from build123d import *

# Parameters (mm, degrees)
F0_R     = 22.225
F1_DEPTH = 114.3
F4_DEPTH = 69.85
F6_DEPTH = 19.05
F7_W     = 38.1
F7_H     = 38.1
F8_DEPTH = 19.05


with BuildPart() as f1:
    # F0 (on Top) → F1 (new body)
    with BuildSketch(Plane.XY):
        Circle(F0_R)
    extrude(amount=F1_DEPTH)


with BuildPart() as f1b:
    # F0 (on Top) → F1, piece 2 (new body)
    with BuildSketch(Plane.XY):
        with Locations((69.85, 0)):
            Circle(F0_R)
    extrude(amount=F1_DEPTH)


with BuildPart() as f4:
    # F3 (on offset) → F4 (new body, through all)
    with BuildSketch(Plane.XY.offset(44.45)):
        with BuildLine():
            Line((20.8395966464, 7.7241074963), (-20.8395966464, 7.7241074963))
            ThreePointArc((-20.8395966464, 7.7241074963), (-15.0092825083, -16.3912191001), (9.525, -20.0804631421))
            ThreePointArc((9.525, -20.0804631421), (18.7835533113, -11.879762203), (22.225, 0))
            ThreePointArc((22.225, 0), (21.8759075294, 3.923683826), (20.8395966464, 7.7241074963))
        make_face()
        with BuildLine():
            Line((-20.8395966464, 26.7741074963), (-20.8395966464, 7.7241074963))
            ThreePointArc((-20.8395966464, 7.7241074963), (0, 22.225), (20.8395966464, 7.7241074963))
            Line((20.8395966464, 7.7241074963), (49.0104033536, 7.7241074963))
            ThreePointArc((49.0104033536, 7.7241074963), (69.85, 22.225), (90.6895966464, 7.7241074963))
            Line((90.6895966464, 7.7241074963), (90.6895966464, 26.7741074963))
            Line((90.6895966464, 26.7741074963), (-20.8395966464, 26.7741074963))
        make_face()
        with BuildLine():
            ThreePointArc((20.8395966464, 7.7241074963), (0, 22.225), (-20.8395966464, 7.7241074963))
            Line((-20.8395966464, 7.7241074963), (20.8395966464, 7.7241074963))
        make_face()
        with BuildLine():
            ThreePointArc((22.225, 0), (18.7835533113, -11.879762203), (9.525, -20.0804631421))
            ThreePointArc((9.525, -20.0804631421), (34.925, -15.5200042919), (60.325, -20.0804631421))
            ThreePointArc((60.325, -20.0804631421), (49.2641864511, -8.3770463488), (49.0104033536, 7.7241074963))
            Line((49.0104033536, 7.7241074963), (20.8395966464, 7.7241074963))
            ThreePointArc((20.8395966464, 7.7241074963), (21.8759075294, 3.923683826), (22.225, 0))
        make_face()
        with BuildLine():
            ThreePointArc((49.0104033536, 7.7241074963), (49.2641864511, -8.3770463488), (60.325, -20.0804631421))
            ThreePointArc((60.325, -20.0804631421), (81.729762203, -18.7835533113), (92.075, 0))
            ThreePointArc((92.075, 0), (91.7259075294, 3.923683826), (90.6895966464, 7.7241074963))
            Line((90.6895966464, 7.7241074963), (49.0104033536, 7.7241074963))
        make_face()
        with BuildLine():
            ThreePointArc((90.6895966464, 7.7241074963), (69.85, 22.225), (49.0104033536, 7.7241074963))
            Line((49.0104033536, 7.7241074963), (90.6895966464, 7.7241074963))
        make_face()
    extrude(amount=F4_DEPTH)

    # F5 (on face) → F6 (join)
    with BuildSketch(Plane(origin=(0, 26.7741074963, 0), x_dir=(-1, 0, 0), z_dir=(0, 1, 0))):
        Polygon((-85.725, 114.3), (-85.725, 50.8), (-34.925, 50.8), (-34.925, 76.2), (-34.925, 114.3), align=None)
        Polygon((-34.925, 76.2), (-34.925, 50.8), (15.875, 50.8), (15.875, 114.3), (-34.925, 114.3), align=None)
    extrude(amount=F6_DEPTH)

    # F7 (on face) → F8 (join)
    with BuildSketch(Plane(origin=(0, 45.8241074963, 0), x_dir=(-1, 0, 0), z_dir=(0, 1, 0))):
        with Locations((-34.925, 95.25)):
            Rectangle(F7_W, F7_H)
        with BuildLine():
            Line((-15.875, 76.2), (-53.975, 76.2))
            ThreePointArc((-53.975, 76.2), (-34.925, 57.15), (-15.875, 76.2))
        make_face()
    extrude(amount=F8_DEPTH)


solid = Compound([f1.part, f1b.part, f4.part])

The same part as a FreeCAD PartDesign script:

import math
import FreeCAD as App
import Part
import Sketcher

V = App.Vector
Q = App.Units.Quantity


def add_polygon(sketch, points):
    """Adds a closed chain of lines whose ends are joined by coincident constraints."""
    first, n = sketch.GeometryCount, len(points)
    for a, b in zip(points, points[1:] + points[:1]):
        sketch.addGeometry(Part.LineSegment(App.Vector(*a, 0), App.Vector(*b, 0)), False)
    for i in range(n):
        sketch.addConstraint(Sketcher.Constraint("Coincident", first + i, 2, first + (i + 1) % n, 1))

doc = App.newDocument("Part")
body = doc.addObject("PartDesign::Body", "Body")

# Sketch on XY plane
sketch1 = body.newObject("Sketcher::SketchObject", "Sketch")
sketch1.AttachmentSupport = (doc.getObject("XY_Plane"), [""])
sketch1.MapMode = "FlatFace"
sketch1.addGeometry(Part.Circle(V(0, 0, 0), V(0, 0, 1), 22), False)
sketch1.addConstraint([
    Sketcher.Constraint("Coincident", 0, 3, -1, 1),
    Sketcher.Constraint("Diameter", 0, Q("1.75 in")),
])
pad1 = body.newObject("PartDesign::Pad", "Pad")
pad1.Profile = sketch1
pad1.Length = Q("4.5 in")
body2 = doc.addObject("PartDesign::Body", "Body001")

# Sketch on XY plane
sketch2 = body2.newObject("Sketcher::SketchObject", "Sketch001")
sketch2.AttachmentSupport = (doc.getObject("XY_Plane001"), [""])
sketch2.MapMode = "FlatFace"
sketch2.addGeometry(Part.Circle(V(70, 0, 0), V(0, 0, 1), 22), False)
sketch2.addConstraint([
    Sketcher.Constraint("PointOnObject", 0, 3, -1),
    Sketcher.Constraint("Diameter", 0, Q("1.75 in")),
    Sketcher.Constraint("DistanceX", -1, 1, 0, 3, Q("2.75 in")),
])
pad2 = body2.newObject("PartDesign::Pad", "Pad001")
pad2.Profile = sketch2
pad2.Length = Q("4.5 in")
body3 = doc.addObject("PartDesign::Body", "Body002")

# Sketch on XY plane
sketch3 = body3.newObject("Sketcher::SketchObject", "Sketch002")
sketch3.AttachmentSupport = (doc.getObject("XY_Plane002"), [""])
sketch3.MapMode = "FlatFace"
sketch3.AttachmentOffset = App.Placement(V(0, 0, 1.75 * 25.4), App.Rotation())
sketch3.addGeometry([
    Part.ArcOfCircle(Part.Circle(V(70, 0, 0), V(0, 0, 1), 22), math.radians(0), math.radians(20)),  # 0
    Part.LineSegment(V(91, 8, 0), V(91, 27, 0)),  # 1
    Part.LineSegment(V(91, 27, 0), V(-21, 27, 0)),  # 2
    Part.LineSegment(V(-21, 27, 0), V(-21, 8, 0)),  # 3
    Part.ArcOfCircle(Part.Circle(V(0, 0, 0), V(0, 0, 1), 22), math.radians(160), math.radians(295)),  # 4
    Part.ArcOfCircle(Part.Circle(V(35, -89, 0), V(0, 0, 1), 73), math.radians(70), math.radians(110)),  # 5
    Part.ArcOfCircle(Part.Circle(V(70, 0, 0), V(0, 0, 1), 22), math.radians(-115), math.radians(0)),  # 6
], False)
sketch3.addConstraint([
    Sketcher.Constraint("Coincident", 0, 2, 1, 1),
    Sketcher.Constraint("Coincident", 1, 2, 2, 1),
    Sketcher.Constraint("Coincident", 2, 2, 3, 1),
    Sketcher.Constraint("Coincident", 3, 2, 4, 1),
    Sketcher.Constraint("Coincident", 4, 2, 5, 2),
    Sketcher.Constraint("Coincident", 5, 1, 6, 1),
    Sketcher.Constraint("Tangent", 6, 2, 0, 1),
    Sketcher.Constraint("Vertical", 1),
    Sketcher.Constraint("Horizontal", 2),
    Sketcher.Constraint("Vertical", 3),
    Sketcher.Constraint("Coincident", 4, 3, -1, 1),
    Sketcher.Constraint("Equal", 0, 4),
    Sketcher.Constraint("Equal", 4, 6),
    Sketcher.Constraint("PointOnObject", 0, 3, -1),
    Sketcher.Constraint("PointOnObject", 6, 2, -1),
    Sketcher.Constraint("Horizontal", 0, 2, 3, 2),
    Sketcher.Constraint("Horizontal", 4, 2, 5, 1),
    Sketcher.Constraint("Radius", 0, Q("0.875 in")),
    Sketcher.Constraint("DistanceX", 4, 2, 5, 1, Q("2 in")),
    Sketcher.Constraint("DistanceY", 1, 1, 1, 2, Q("0.75 in")),
    Sketcher.Constraint("DistanceX", -1, 1, 0, 3, Q("2.75 in")),
    Sketcher.Constraint("Radius", 5, Q("73.01434 mm")),
    Sketcher.Constraint("DistanceX", 2, 2, 2, 1, Q("111.529193 mm")),
])
pad3 = body3.newObject("PartDesign::Pad", "Pad002")
pad3.Profile = sketch3
pad3.Length = Q("2.75 in")

# Sketch on XZ plane
sketch4 = body3.newObject("Sketcher::SketchObject", "Sketch003")
sketch4.AttachmentSupport = (doc.getObject("XZ_Plane002"), [""])
sketch4.MapMode = "FlatFace"
sketch4.AttachmentOffset = App.Placement(V(0, 0, -26.774107), App.Rotation())
add_polygon(sketch4, [(86, 114), (86, 51), (-16, 51), (-16, 114)])  # lines 0-3
sketch4.addConstraint([
    Sketcher.Constraint("Vertical", 0),
    Sketcher.Constraint("Horizontal", 1),
    Sketcher.Constraint("Vertical", 2),
    Sketcher.Constraint("Horizontal", 3),
    Sketcher.Constraint("DistanceX", 1, 2, 1, 1, Q("4 in")),
    Sketcher.Constraint("DistanceY", 0, 2, 0, 1, Q("2.5 in")),
    Sketcher.Constraint("DistanceY", -1, 1, 0, 2, Q("2 in")),
    Sketcher.Constraint("DistanceX", -1, 1, 0, 2, Q("3.375 in")),
])
pad4 = body3.newObject("PartDesign::Pad", "Pad003")
pad4.Profile = sketch4
pad4.Length = Q("0.75 in")
pad4.Reversed = True

# Sketch on XZ plane
sketch5 = body3.newObject("Sketcher::SketchObject", "Sketch004")
sketch5.AttachmentSupport = (doc.getObject("XZ_Plane002"), [""])
sketch5.MapMode = "FlatFace"
sketch5.AttachmentOffset = App.Placement(V(0, 0, -45.824107), App.Rotation())
sketch5.addGeometry([
    Part.LineSegment(V(54, 114, 0), V(54, 76, 0)),
    Part.ArcOfCircle(Part.Circle(V(35, 76, 0), V(0, 0, 1), 19), math.radians(180), math.radians(360)),
    Part.LineSegment(V(16, 76, 0), V(16, 114, 0)),
    Part.LineSegment(V(16, 114, 0), V(54, 114, 0)),
], False)
sketch5.addConstraint([
    Sketcher.Constraint("Tangent", 0, 2, 1, 2),
    Sketcher.Constraint("Tangent", 1, 1, 2, 1),
    Sketcher.Constraint("Coincident", 2, 2, 3, 1),
    Sketcher.Constraint("Coincident", 3, 2, 0, 1),
    Sketcher.Constraint("Vertical", 0),
    Sketcher.Constraint("Vertical", 2),
    Sketcher.Constraint("Horizontal", 3),
    Sketcher.Constraint("Equal", 3, 0),
    Sketcher.Constraint("Radius", 1, Q("0.75 in")),
    Sketcher.Constraint("DistanceY", -1, 1, 1, 3, Q("3 in")),
    Sketcher.Constraint("DistanceX", -1, 1, 1, 3, Q("1.375 in")),
])
pad5 = body3.newObject("PartDesign::Pad", "Pad004")
pad5.Profile = sketch5
pad5.Length = Q("0.75 in")
pad5.Reversed = True

doc.recompute()
